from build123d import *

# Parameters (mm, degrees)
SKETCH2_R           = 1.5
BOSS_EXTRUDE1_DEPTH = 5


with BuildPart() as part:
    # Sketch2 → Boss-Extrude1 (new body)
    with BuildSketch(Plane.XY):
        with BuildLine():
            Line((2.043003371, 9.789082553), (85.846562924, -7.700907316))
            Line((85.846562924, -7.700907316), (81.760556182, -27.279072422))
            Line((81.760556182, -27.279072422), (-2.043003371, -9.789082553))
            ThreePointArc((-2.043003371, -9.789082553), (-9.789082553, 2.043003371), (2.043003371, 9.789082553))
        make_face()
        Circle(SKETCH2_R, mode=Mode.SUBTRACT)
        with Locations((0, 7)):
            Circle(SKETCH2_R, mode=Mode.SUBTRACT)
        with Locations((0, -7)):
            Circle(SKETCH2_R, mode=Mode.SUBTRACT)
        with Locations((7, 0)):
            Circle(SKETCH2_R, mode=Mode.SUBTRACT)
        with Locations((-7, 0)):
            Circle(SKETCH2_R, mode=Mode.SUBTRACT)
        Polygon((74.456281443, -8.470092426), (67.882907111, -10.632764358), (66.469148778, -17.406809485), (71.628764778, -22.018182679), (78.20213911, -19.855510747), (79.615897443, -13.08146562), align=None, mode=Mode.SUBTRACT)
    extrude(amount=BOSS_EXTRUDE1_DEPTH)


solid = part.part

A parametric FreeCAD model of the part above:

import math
import FreeCAD as App
import Part
import Sketcher

V = App.Vector

doc = App.newDocument("Part")
body = doc.addObject("PartDesign::Body", "Body")

sketch1 = body.newObject("Sketcher::SketchObject", "Sketch")
sketch1.AttachmentSupport = (doc.getObject("XY_Plane"), [""])
sketch1.MapMode = "FlatFace"
sketch1.addGeometry([
    Part.LineSegment(V(85.846563, -7.700907, 0), V(2.043003, 9.789083, 0)),
    Part.ArcOfCircle(Part.Circle(V(0, 0, 0), V(0, 0, 1), 10), math.radians(78.211455), math.radians(258.211455)),
    Part.LineSegment(V(-2.043003, -9.789083, 0), V(81.760556, -27.279072, 0)),
    Part.LineSegment(V(81.760556, -27.279072, 0), V(85.846563, -7.700907, 0)),
    Part.LineSegment(V(74.456281, -8.470092, 0), V(79.615897, -13.081466, 0)),
    Part.LineSegment(V(79.615897, -13.081466, 0), V(78.202139, -19.855511, 0)),
    Part.LineSegment(V(78.202139, -19.855511, 0), V(71.628765, -22.018183, 0)),
    Part.LineSegment(V(71.628765, -22.018183, 0), V(66.469149, -17.406809, 0)),
    Part.LineSegment(V(66.469149, -17.406809, 0), V(67.882907, -10.632764, 0)),
    Part.LineSegment(V(67.882907, -10.632764, 0), V(74.456281, -8.470092, 0)),
    Part.Circle(V(0, -7, 0), V(0, 0, 1), 1.5),
    Part.Circle(V(7, 0, 0), V(0, 0, 1), 1.5),
    Part.Circle(V(0, 0, 0), V(0, 0, 1), 1.5),
    Part.Circle(V(-7, 0, 0), V(0, 0, 1), 1.5),
    Part.Circle(V(0, 7, 0), V(0, 0, 1), 1.5),
], False)
sketch1.addConstraint([
    Sketcher.Constraint("Tangent", 0, 2, 1, 1),
    Sketcher.Constraint("Tangent", 1, 2, 2, 1),
    Sketcher.Constraint("Coincident", 2, 2, 3, 1),
    Sketcher.Constraint("Coincident", 3, 2, 0, 1),
    Sketcher.Constraint("Coincident", 4, 2, 5, 1),
    Sketcher.Constraint("Coincident", 5, 2, 6, 1),
    Sketcher.Constraint("Coincident", 6, 2, 7, 1),
    Sketcher.Constraint("Coincident", 7, 2, 8, 1),
    Sketcher.Constraint("Coincident", 8, 2, 9, 1),
    Sketcher.Constraint("Coincident", 9, 2, 4, 1),
    Sketcher.Constraint("Coincident", 1, 3, -1, 1),
    Sketcher.Constraint("Coincident", 12, 3, -1, 1),
    Sketcher.Constraint("Equal", 10, 11),
    Sketcher.Constraint("Equal", 11, 12),
    Sketcher.Constraint("Equal", 12, 13),
    Sketcher.Constraint("Equal", 13, 14),
    Sketcher.Constraint("Symmetric", 11, 3, 13, 3, -1, 1),
    Sketcher.Constraint("Symmetric", 10, 3, 14, 3, -1, 1),
    Sketcher.Constraint("PointOnObject", 10, 3, -2),
    Sketcher.Constraint("PointOnObject", 11, 3, -1),
    Sketcher.Constraint("Parallel", 0, 2),
    Sketcher.Constraint("Perpendicular", 2, 3),
    Sketcher.Constraint("Parallel", 3, 5),
    Sketcher.Constraint("Parallel", 4, 7),
    Sketcher.Constraint("Parallel", 5, 8),
    Sketcher.Constraint("Parallel", 6, 9),
    Sketcher.Constraint("Equal", 4, 5),
    Sketcher.Constraint("Equal", 5, 6),
    Sketcher.Constraint("Equal", 6, 7),
    Sketcher.Constraint("Diameter", 10, 3.0),
    Sketcher.Constraint("Radius", 1, 10.0),
    Sketcher.Constraint("DistanceY", 10, 3, -1, 1, 7.0),
    Sketcher.Constraint("DistanceX", -1, 1, 11, 3, 7.0),
    Sketcher.Constraint("Distance", 4, 6.92),
    Sketcher.Constraint("DistanceX", 6, 2, 3, 2, 14.217798),
    Sketcher.Constraint("DistanceY", 5, 2, 7, 2, 2.448701),
    Sketcher.Constraint("DistanceX", -1, 1, 5, 2, 78.202139),
    Sketcher.Constraint("DistanceY", 5, 2, -1, 1, 19.855511),
    Sketcher.Constraint("DistanceX", -1, 1, 7, 2, 66.469149),
    Sketcher.Constraint("DistanceX", -1, 1, 9, 2, 74.456281),
])
pad1 = body.newObject("PartDesign::Pad", "Pad")
pad1.Profile = sketch1
pad1.Length = 5

doc.recompute()
